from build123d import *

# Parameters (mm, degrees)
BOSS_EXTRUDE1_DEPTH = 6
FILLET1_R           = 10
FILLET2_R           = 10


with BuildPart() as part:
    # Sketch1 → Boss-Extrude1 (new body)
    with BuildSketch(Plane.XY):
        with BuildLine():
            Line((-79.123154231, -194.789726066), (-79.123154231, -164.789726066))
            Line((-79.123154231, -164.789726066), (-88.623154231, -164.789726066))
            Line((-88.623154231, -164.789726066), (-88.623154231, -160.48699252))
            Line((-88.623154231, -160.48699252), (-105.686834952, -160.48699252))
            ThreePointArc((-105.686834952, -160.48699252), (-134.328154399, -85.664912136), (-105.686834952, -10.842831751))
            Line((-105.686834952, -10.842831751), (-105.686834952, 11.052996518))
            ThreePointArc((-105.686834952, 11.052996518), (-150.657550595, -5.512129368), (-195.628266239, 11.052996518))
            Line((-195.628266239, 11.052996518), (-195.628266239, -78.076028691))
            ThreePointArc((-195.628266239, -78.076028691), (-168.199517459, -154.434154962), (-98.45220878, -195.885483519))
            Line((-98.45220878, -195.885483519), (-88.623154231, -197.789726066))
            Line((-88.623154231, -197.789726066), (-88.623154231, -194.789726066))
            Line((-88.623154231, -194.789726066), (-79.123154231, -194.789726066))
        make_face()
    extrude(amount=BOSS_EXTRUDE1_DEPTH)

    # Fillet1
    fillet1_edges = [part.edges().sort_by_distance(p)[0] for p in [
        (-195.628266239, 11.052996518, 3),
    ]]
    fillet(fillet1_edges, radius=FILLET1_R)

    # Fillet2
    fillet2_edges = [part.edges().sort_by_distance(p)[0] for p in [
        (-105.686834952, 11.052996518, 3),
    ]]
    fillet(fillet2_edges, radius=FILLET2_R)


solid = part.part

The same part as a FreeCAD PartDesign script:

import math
import FreeCAD as App
import Part
import Sketcher
from FreeCAD import Vector


def edges_at(feature, points):
    """Names of the edges that pass closest to the given points."""
    edges = feature.Shape.Edges
    near = lambda p: min(range(len(edges)), key=lambda i: edges[i].distToShape(Part.Vertex(*p))[0])
    return sorted({f"Edge{near(p) + 1}" for p in points})

doc = App.newDocument("Part")
body = doc.addObject("PartDesign::Body", "Body")

sketch1 = body.newObject("Sketcher::SketchObject", "Sketch")
sketch1.AttachmentSupport = (doc.getObject("XY_Plane"), [""])
sketch1.MapMode = "FlatFace"
sketch1.addGeometry(Part.LineSegment(Vector(-79.1, -194.8, 0), Vector(-79.1, -164.8, 0)), False)
sketch1.addGeometry(Part.LineSegment(Vector(-79.1, -164.8, 0), Vector(-88.6, -164.8, 0)), False)
sketch1.addGeometry(Part.LineSegment(Vector(-88.6, -164.8, 0), Vector(-88.6, -160.5, 0)), False)
sketch1.addGeometry(Part.LineSegment(Vector(-88.6, -160.5, 0), Vector(-105.7, -160.5, 0)), False)
sketch1.addGeometry(Part.ArcOfCircle(Part.Circle(Vector(-22.3, -85.7, 0), Vector(0, 0, 1), 112.1), math.radians(138), math.radians(222)), False)
sketch1.addGeometry(Part.LineSegment(Vector(-105.7, -10.8, 0), Vector(-105.7, 11.1, 0)), False)
sketch1.addGeometry(Part.ArcOfCircle(Part.Circle(Vector(-150.7, 63.8, 0), Vector(0, 0, 1), 69.3), math.radians(-130), math.radians(-50)), False)
sketch1.addGeometry(Part.LineSegment(Vector(-195.6, 11.1, 0), Vector(-195.6, -78.1, 0)), False)
sketch1.addGeometry(Part.ArcOfCircle(Part.Circle(Vector(-75.6, -78.1, 0), Vector(0, 0, 1), 120), math.radians(180), math.radians(259)), False)
sketch1.addGeometry(Part.LineSegment(Vector(-98.5, -195.9, 0), Vector(-88.6, -197.8, 0)), False)
sketch1.addGeometry(Part.LineSegment(Vector(-88.6, -197.8, 0), Vector(-88.6, -194.8, 0)), False)
sketch1.addGeometry(Part.LineSegment(Vector(-88.6, -194.8, 0), Vector(-79.1, -194.8, 0)), False)
sketch1.addConstraint(Sketcher.Constraint("Coincident", 0, 2, 1, 1))
sketch1.addConstraint(Sketcher.Constraint("Coincident", 1, 2, 2, 1))
sketch1.addConstraint(Sketcher.Constraint("Coincident", 2, 2, 3, 1))
sketch1.addConstraint(Sketcher.Constraint("Coincident", 3, 2, 4, 2))
sketch1.addConstraint(Sketcher.Constraint("Coincident", 4, 1, 5, 1))
sketch1.addConstraint(Sketcher.Constraint("Coincident", 5, 2, 6, 2))
sketch1.addConstraint(Sketcher.Constraint("Coincident", 6, 1, 7, 1))
sketch1.addConstraint(Sketcher.Constraint("Tangent", 7, 2, 8, 1))
sketch1.addConstraint(Sketcher.Constraint("Tangent", 8, 2, 9, 1))
sketch1.addConstraint(Sketcher.Constraint("Coincident", 9, 2, 10, 1))
sketch1.addConstraint(Sketcher.Constraint("Coincident", 10, 2, 11, 1))
sketch1.addConstraint(Sketcher.Constraint("Coincident", 11, 2, 0, 1))
sketch1.addConstraint(Sketcher.Constraint("Vertical", 0))
sketch1.addConstraint(Sketcher.Constraint("Horizontal", 1))
sketch1.addConstraint(Sketcher.Constraint("Vertical", 2))
sketch1.addConstraint(Sketcher.Constraint("Horizontal", 3))
sketch1.addConstraint(Sketcher.Constraint("Vertical", 5))
sketch1.addConstraint(Sketcher.Constraint("Vertical", 7))
sketch1.addConstraint(Sketcher.Constraint("Vertical", 10))
sketch1.addConstraint(Sketcher.Constraint("Horizontal", 11))
sketch1.addConstraint(Sketcher.Constraint("Horizontal", 5, 2, 6, 1))
sketch1.addConstraint(Sketcher.Constraint("Vertical", 3, 2, 4, 1))
sketch1.addConstraint(Sketcher.Constraint("Vertical", 2, 2, 9, 2))
sketch1.addConstraint(Sketcher.Constraint("Radius", 8, 120.0))
sketch1.addConstraint(Sketcher.Constraint("DistanceY", 0, 1, 0, 2, 30.0))
sketch1.addConstraint(Sketcher.Constraint("DistanceY", 10, 1, 10, 2, 3.0))
sketch1.addConstraint(Sketcher.Constraint("DistanceX", 1, 2, 1, 1, 9.5))
sketch1.addConstraint(Sketcher.Constraint("Radius", 6, 69.325421))
sketch1.addConstraint(Sketcher.Constraint("Radius", 4, 112.052605))
sketch1.addConstraint(Sketcher.Constraint("DistanceX", 6, 3, 4, 3, 128.382001))
sketch1.addConstraint(Sketcher.Constraint("DistanceX", 3, 2, 3, 1, 17.063681))
sketch1.addConstraint(Sketcher.Constraint("DistanceY", 5, 1, 5, 2, 21.895828))
sketch1.addConstraint(Sketcher.Constraint("DistanceY", 2, 1, 2, 2, 4.302734))
sketch1.addConstraint(Sketcher.Constraint("DistanceY", 7, 2, 7, 1, 89.129025))
sketch1.addConstraint(Sketcher.Constraint("DistanceX", 4, 3, -1, 1, 22.27555))
sketch1.addConstraint(Sketcher.Constraint("DistanceY", -1, 1, 6, 3, 63.813292))
sketch1.addConstraint(Sketcher.Constraint("DistanceY", 8, 3, -1, 1, 78.076029))
pad1 = body.newObject("PartDesign::Pad", "Pad")
pad1.Profile = sketch1
pad1.Length = 6
doc.recompute()

fillet = body.newObject("PartDesign::Fillet", "Fillet")
fillet.Base = (pad1, edges_at(pad1, [(-195.628, 11.053, 3)]))
fillet.Radius = 10
doc.recompute()

fillet2 = body.newObject("PartDesign::Fillet", "Fillet001")
fillet2.Base = (fillet, edges_at(fillet, [(-105.687, 11.053, 3)]))
fillet2.Radius = 10

doc.recompute()
